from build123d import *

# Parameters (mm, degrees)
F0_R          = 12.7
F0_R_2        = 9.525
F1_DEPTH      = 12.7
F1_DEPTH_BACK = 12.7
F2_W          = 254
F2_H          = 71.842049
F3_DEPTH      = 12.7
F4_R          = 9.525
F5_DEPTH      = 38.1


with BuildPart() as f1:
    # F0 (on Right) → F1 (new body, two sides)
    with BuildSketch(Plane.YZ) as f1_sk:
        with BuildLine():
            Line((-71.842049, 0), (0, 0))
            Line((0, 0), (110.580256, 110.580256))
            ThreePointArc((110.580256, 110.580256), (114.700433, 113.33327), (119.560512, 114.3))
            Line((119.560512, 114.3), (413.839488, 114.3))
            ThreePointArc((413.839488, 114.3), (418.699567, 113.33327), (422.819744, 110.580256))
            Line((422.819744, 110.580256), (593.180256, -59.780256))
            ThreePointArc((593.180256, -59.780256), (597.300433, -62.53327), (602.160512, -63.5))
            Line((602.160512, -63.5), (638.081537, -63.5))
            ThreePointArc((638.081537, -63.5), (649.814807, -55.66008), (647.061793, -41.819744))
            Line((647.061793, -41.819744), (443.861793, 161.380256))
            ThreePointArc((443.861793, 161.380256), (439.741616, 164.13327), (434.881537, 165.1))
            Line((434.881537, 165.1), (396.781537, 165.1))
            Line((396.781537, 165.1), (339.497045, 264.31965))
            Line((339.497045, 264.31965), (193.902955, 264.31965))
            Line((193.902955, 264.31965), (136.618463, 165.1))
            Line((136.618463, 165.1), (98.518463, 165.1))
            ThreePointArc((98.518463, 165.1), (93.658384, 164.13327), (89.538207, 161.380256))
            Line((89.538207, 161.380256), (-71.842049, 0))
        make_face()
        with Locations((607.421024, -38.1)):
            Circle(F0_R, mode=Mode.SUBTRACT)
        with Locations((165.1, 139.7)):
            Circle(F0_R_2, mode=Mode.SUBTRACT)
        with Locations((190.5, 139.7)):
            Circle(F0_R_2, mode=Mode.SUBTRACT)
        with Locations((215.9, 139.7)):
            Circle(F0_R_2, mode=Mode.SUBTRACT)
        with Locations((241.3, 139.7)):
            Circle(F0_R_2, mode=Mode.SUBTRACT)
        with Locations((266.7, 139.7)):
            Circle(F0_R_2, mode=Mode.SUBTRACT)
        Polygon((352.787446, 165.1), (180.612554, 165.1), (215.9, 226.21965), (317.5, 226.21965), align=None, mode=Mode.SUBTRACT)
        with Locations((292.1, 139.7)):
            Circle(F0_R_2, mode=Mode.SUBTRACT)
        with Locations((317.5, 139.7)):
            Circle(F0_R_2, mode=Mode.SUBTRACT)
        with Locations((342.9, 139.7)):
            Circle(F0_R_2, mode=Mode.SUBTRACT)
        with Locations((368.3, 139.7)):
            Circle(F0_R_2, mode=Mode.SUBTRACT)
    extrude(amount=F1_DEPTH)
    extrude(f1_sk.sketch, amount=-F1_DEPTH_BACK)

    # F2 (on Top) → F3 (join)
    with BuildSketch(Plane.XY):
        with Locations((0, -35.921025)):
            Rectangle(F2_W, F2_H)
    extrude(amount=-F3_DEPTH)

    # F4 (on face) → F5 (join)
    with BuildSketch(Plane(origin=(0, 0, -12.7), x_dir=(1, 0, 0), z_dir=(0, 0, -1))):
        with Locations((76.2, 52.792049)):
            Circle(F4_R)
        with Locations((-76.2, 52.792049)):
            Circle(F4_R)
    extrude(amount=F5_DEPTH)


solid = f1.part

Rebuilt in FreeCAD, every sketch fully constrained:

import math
import FreeCAD as App
import Part
import Sketcher
Q = App.Units.Quantity


def add_polygon(sketch, points):
    """Adds a closed chain of lines whose ends are joined by coincident constraints."""
    first, n = sketch.GeometryCount, len(points)
    for a, b in zip(points, points[1:] + points[:1]):
        sketch.addGeometry(Part.LineSegment(App.Vector(*a, 0), App.Vector(*b, 0)), False)
    for i in range(n):
        sketch.addConstraint(Sketcher.Constraint("Coincident", first + i, 2, first + (i + 1) % n, 1))

doc = App.newDocument("Part")
body = doc.addObject("PartDesign::Body", "Body")

sketch1 = doc.addObject("Sketcher::SketchObject", "Sketch")
body.addObject(sketch1)
sketch1.AttachmentSupport = (doc.YZ_Plane, [""])
sketch1.MapMode = "FlatFace"
sketch1.addGeometry(Part.LineSegment(App.Vector(-72, 0, 0), App.Vector(0, 0, 0)), False)
sketch1.addGeometry(Part.LineSegment(App.Vector(0, 0, 0), App.Vector(111, 111, 0)), False)
sketch1.addGeometry(Part.ArcOfCircle(Part.Circle(App.Vector(120, 102, 0), App.Vector(0, 0, 1), 13), math.radians(90), math.radians(135)), False)
sketch1.addGeometry(Part.LineSegment(App.Vector(120, 114, 0), App.Vector(414, 114, 0)), False)
sketch1.addGeometry(Part.ArcOfCircle(Part.Circle(App.Vector(414, 102, 0), App.Vector(0, 0, 1), 13), math.radians(45), math.radians(90)), False)
sketch1.addGeometry(Part.LineSegment(App.Vector(423, 111, 0), App.Vector(593, -60, 0)), False)
sketch1.addGeometry(Part.ArcOfCircle(Part.Circle(App.Vector(602, -51, 0), App.Vector(0, 0, 1), 13), math.radians(-135), math.radians(-90)), False)
sketch1.addGeometry(Part.LineSegment(App.Vector(602, -64, 0), App.Vector(638, -64, 0)), False)
sketch1.addGeometry(Part.ArcOfCircle(Part.Circle(App.Vector(638, -51, 0), App.Vector(0, 0, 1), 13), math.radians(-90), math.radians(45)), False)
sketch1.addGeometry(Part.LineSegment(App.Vector(647, -42, 0), App.Vector(444, 161, 0)), False)
sketch1.addGeometry(Part.ArcOfCircle(Part.Circle(App.Vector(435, 152, 0), App.Vector(0, 0, 1), 13), math.radians(45), math.radians(90)), False)
sketch1.addGeometry(Part.LineSegment(App.Vector(435, 165, 0), App.Vector(397, 165, 0)), False)
sketch1.addGeometry(Part.LineSegment(App.Vector(397, 165, 0), App.Vector(339, 264, 0)), False)
sketch1.addGeometry(Part.LineSegment(App.Vector(339, 264, 0), App.Vector(194, 264, 0)), False)
sketch1.addGeometry(Part.LineSegment(App.Vector(194, 264, 0), App.Vector(137, 165, 0)), False)
sketch1.addGeometry(Part.LineSegment(App.Vector(137, 165, 0), App.Vector(99, 165, 0)), False)
sketch1.addGeometry(Part.ArcOfCircle(Part.Circle(App.Vector(99, 152, 0), App.Vector(0, 0, 1), 13), math.radians(90), math.radians(135)), False)
sketch1.addGeometry(Part.LineSegment(App.Vector(90, 161, 0), App.Vector(-72, 0, 0)), False)
sketch1.addGeometry(Part.Circle(App.Vector(607, -38, 0), App.Vector(0, 0, 1), 13), False)
sketch1.addGeometry(Part.Circle(App.Vector(165, 140, 0), App.Vector(0, 0, 1), 10), False)
sketch1.addGeometry(Part.Circle(App.Vector(190, 140, 0), App.Vector(0, 0, 1), 10), False)
sketch1.addGeometry(Part.Circle(App.Vector(216, 140, 0), App.Vector(0, 0, 1), 10), False)
sketch1.addGeometry(Part.Circle(App.Vector(241, 140, 0), App.Vector(0, 0, 1), 10), False)
sketch1.addGeometry(Part.Circle(App.Vector(267, 140, 0), App.Vector(0, 0, 1), 10), False)
sketch1.addGeometry(Part.Circle(App.Vector(292, 140, 0), App.Vector(0, 0, 1), 10), False)
sketch1.addGeometry(Part.Circle(App.Vector(318, 140, 0), App.Vector(0, 0, 1), 10), False)
sketch1.addGeometry(Part.Circle(App.Vector(343, 140, 0), App.Vector(0, 0, 1), 10), False)
sketch1.addGeometry(Part.Circle(App.Vector(368, 140, 0), App.Vector(0, 0, 1), 10), False)
add_polygon(sketch1, [(318, 226), (353, 165), (181, 165), (216, 226)])
sketch1.addConstraint([
    Sketcher.Constraint("Coincident", 0, 2, 1, 1),
    Sketcher.Constraint("Tangent", 1, 2, 2, 2),
    Sketcher.Constraint("Tangent", 2, 1, 3, 1),
    Sketcher.Constraint("Tangent", 3, 2, 4, 2),
    Sketcher.Constraint("Tangent", 4, 1, 5, 1),
    Sketcher.Constraint("Tangent", 5, 2, 6, 1),
    Sketcher.Constraint("Tangent", 6, 2, 7, 1),
    Sketcher.Constraint("Tangent", 7, 2, 8, 1),
    Sketcher.Constraint("Tangent", 8, 2, 9, 1),
    Sketcher.Constraint("Tangent", 9, 2, 10, 1),
    Sketcher.Constraint("Tangent", 10, 2, 11, 1),
    Sketcher.Constraint("Coincident", 11, 2, 12, 1),
    Sketcher.Constraint("Coincident", 12, 2, 13, 1),
    Sketcher.Constraint("Coincident", 13, 2, 14, 1),
    Sketcher.Constraint("Coincident", 14, 2, 15, 1),
    Sketcher.Constraint("Tangent", 15, 2, 16, 1),
    Sketcher.Constraint("Tangent", 16, 2, 17, 1),
    Sketcher.Constraint("Coincident", 17, 2, 0, 1),
    Sketcher.Constraint("Horizontal", 0),
    Sketcher.Constraint("Horizontal", 3),
    Sketcher.Constraint("Horizontal", 7),
    Sketcher.Constraint("Horizontal", 11),
    Sketcher.Constraint("Horizontal", 13),
    Sketcher.Constraint("Horizontal", 15),
    Sketcher.Constraint("Horizontal", 29),
    Sketcher.Constraint("Horizontal", 31),
    Sketcher.Constraint("Coincident", 0, 2, -1, 1),
    Sketcher.Constraint("Equal", 2, 4),
    Sketcher.Constraint("Equal", 4, 6),
    Sketcher.Constraint("Equal", 6, 10),
    Sketcher.Constraint("Equal", 10, 16),
    Sketcher.Constraint("Equal", 8, 18),
    Sketcher.Constraint("Equal", 19, 20),
    Sketcher.Constraint("Equal", 20, 21),
    Sketcher.Constraint("Equal", 21, 22),
    Sketcher.Constraint("Equal", 22, 23),
    Sketcher.Constraint("Equal", 23, 24),
    Sketcher.Constraint("Equal", 24, 25),
    Sketcher.Constraint("Equal", 25, 26),
    Sketcher.Constraint("Equal", 26, 27),
    Sketcher.Constraint("Perpendicular", 1, 5),
    Sketcher.Constraint("Parallel", 5, 9),
    Sketcher.Constraint("Perpendicular", 9, 17),
    Sketcher.Constraint("Parallel", 12, 28),
    Sketcher.Constraint("Parallel", 14, 30),
    Sketcher.Constraint("Horizontal", 10, 3, 16, 3),
    Sketcher.Constraint("Horizontal", 19, 3, 20, 3),
    Sketcher.Constraint("Horizontal", 20, 3, 21, 3),
    Sketcher.Constraint("Horizontal", 21, 3, 22, 3),
    Sketcher.Constraint("Horizontal", 22, 3, 23, 3),
    Sketcher.Constraint("Horizontal", 23, 3, 24, 3),
    Sketcher.Constraint("Horizontal", 24, 3, 25, 3),
    Sketcher.Constraint("Horizontal", 25, 3, 26, 3),
    Sketcher.Constraint("Horizontal", 26, 3, 27, 3),
    Sketcher.Constraint("Horizontal", 1, 2, 4, 1),
    Sketcher.Constraint("Horizontal", 15, 2, 28, 2),
    Sketcher.Constraint("Vertical", 21, 3, 30, 2),
    Sketcher.Constraint("Vertical", 25, 3, 31, 2),
    Sketcher.Constraint("Equal", 11, 15),
    Sketcher.Constraint("Equal", 12, 14),
    Sketcher.Constraint("Diameter", 18, Q("1 in")),
    Sketcher.Constraint("Radius", 2, Q("0.5000001 in")),
    Sketcher.Constraint("Diameter", 19, Q("0.75 in")),
    Sketcher.Constraint("DistanceX", 31, 1, 31, 2, Q("4 in")),
    Sketcher.Constraint("DistanceX", 11, 2, 11, 1, Q("1.5 in")),
    Sketcher.Constraint("DistanceY", -1, 1, 2, 3, Q("3.9999999 in")),
    Sketcher.Constraint("DistanceY", 6, 3, -1, 1, Q("1.9999999 in")),
    Sketcher.Constraint("DistanceY", -1, 1, 10, 3, Q("5.9999999 in")),
    Sketcher.Constraint("Angle", 12, Q("120 deg")),
    Sketcher.Constraint("DistanceX", 2, 3, 6, 3, Q("19 in")),
    Sketcher.Constraint("DistanceY", 18, 3, 19, 3, Q("7 in")),
    Sketcher.Constraint("DistanceX", 19, 3, 20, 3, Q("1 in")),
    Sketcher.Constraint("DistanceX", 20, 3, 21, 3, Q("1 in")),
    Sketcher.Constraint("DistanceX", 21, 3, 22, 3, Q("1 in")),
    Sketcher.Constraint("DistanceX", 22, 3, 23, 3, Q("1 in")),
    Sketcher.Constraint("DistanceX", 23, 3, 24, 3, Q("1 in")),
    Sketcher.Constraint("DistanceX", 25, 3, 26, 3, Q("1 in")),
    Sketcher.Constraint("DistanceX", 26, 3, 27, 3, Q("1 in")),
    Sketcher.Constraint("DistanceY", 2, 1, 19, 3, Q("1 in")),
    Sketcher.Constraint("DistanceX", -1, 1, 19, 3, Q("6.5 in")),
    Sketcher.Constraint("DistanceY", 30, 2, 13, 2, Q("1.5 in")),
    Sketcher.Constraint("DistanceX", 0, 1, 0, 2, 71.842049),
    Sketcher.Constraint("DistanceX", 13, 2, 13, 1, 145.59409),
    Sketcher.Constraint("DistanceX", 29, 2, 29, 1, 172.174892),
    Sketcher.Constraint("DistanceX", 6, 3, 18, 3, 5.260511),
])
pad1 = doc.addObject("PartDesign::Pad", "Pad")
body.addObject(pad1)
pad1.Profile = sketch1
pad1.Type = "TwoLengths"
pad1.Length = Q("0.5 in")
pad1.Length2 = Q("0.5 in")

sketch2 = doc.addObject("Sketcher::SketchObject", "Sketch001")
body.addObject(sketch2)
sketch2.AttachmentSupport = (doc.XY_Plane, [""])
sketch2.MapMode = "FlatFace"
add_polygon(sketch2, [(-127, 0), (-127, -72), (127, -72), (127, 0)])
sketch2.addConstraint([
    Sketcher.Constraint("Vertical", 0),
    Sketcher.Constraint("Horizontal", 1),
    Sketcher.Constraint("Vertical", 2),
    Sketcher.Constraint("Horizontal", 3),
    Sketcher.Constraint("Symmetric", 2, 2, 3, 2, -1, 1),
    Sketcher.Constraint("DistanceX", 1, 1, 1, 2, Q("10 in")),
    Sketcher.Constraint("DistanceY", 0, 2, 0, 1, 71.842049),
])
pad2 = doc.addObject("PartDesign::Pad", "Pad001")
body.addObject(pad2)
pad2.Profile = sketch2
pad2.Length = Q("0.5 in")
pad2.Reversed = True

sketch3 = doc.addObject("Sketcher::SketchObject", "Sketch002")
body.addObject(sketch3)
sketch3.AttachmentSupport = (doc.XY_Plane, [""])
sketch3.MapMode = "FlatFace"
sketch3.AttachmentOffset = App.Placement(App.Vector(0, 0, -0.5 * 25.4), App.Rotation())
sketch3.addGeometry([
    Part.Circle(App.Vector(76, -53, 0), App.Vector(0, 0, 1), 10),
    Part.Circle(App.Vector(-76, -53, 0), App.Vector(0, 0, 1), 10),
], False)
sketch3.addConstraint([
    Sketcher.Constraint("Equal", 0, 1),
    Sketcher.Constraint("Symmetric", 0, 3, 1, 3, -2),
    Sketcher.Constraint("Diameter", 0, Q("0.75 in")),
    Sketcher.Constraint("DistanceX", -1, 1, 0, 3, Q("3 in")),
    Sketcher.Constraint("DistanceY", 0, 3, -1, 1, 52.792049),
])
pad3 = doc.addObject("PartDesign::Pad", "Pad002")
body.addObject(pad3)
pad3.Profile = sketch3
pad3.Length = Q("1.5 in")
pad3.Reversed = True

doc.recompute()
